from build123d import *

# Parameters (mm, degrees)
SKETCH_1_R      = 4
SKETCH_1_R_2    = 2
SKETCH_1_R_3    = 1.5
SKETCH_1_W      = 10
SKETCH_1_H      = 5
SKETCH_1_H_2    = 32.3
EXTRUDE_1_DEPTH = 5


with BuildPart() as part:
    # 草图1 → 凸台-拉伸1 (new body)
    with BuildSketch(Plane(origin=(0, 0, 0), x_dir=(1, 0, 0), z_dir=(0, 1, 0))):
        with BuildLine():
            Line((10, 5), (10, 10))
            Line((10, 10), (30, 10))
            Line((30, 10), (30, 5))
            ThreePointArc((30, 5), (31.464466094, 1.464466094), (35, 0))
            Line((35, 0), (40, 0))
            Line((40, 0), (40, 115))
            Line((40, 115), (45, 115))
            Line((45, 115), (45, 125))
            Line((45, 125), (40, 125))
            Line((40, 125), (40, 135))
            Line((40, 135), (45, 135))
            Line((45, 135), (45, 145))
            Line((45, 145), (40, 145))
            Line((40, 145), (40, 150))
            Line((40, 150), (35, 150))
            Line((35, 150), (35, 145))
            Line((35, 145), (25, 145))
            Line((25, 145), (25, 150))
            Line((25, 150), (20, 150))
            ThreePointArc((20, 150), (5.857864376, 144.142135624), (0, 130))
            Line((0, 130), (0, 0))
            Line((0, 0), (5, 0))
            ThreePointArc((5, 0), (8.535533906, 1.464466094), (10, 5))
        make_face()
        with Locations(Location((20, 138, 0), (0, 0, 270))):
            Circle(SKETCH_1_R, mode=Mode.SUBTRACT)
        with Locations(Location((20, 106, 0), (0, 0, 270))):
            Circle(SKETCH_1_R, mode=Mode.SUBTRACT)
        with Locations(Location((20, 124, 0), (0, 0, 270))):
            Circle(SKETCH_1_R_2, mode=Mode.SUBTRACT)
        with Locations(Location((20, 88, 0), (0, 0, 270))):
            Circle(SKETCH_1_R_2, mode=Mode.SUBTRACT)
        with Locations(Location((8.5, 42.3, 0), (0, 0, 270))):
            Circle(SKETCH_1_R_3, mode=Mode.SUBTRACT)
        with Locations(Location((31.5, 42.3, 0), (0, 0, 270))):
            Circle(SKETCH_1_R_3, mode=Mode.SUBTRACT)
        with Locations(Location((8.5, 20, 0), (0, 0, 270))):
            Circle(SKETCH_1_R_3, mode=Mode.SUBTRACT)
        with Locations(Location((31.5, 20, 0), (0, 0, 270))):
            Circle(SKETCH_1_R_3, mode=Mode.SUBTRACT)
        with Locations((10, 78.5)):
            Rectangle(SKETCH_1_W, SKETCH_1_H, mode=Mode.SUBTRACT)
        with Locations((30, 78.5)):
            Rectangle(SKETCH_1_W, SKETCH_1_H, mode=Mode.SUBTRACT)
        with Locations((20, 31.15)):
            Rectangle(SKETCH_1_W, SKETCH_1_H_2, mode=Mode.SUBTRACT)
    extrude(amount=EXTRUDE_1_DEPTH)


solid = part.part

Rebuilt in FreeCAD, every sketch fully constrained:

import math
import FreeCAD as App
import Part
import Sketcher

V = App.Vector
Q = App.Units.Quantity


def add_polygon(sketch, points):
    """Adds a closed chain of lines whose ends are joined by coincident constraints."""
    first, n = sketch.GeometryCount, len(points)
    for a, b in zip(points, points[1:] + points[:1]):
        sketch.addGeometry(Part.LineSegment(App.Vector(*a, 0), App.Vector(*b, 0)), False)
    for i in range(n):
        sketch.addConstraint(Sketcher.Constraint("Coincident", first + i, 2, first + (i + 1) % n, 1))

doc = App.newDocument("Part")
body = doc.addObject("PartDesign::Body", "Body")

# Sketch on XZ plane
sketch1 = body.newObject("Sketcher::SketchObject", "Sketch")
sketch1.AttachmentSupport = (doc.getObject("XZ_Plane"), [""])
sketch1.MapMode = "FlatFace"
sketch1.addGeometry(Part.LineSegment(V(10, -5, 0), V(10, -10, 0)), False)  # 0
sketch1.addGeometry(Part.LineSegment(V(10, -10, 0), V(30, -10, 0)), False)  # 1
sketch1.addGeometry(Part.LineSegment(V(30, -10, 0), V(30, -5, 0)), False)  # 2
sketch1.addGeometry(Part.ArcOfCircle(Part.Circle(V(35, -5, 0), V(0, 0, 1), 5), math.radians(90), math.radians(180)), False)  # 3
sketch1.addGeometry(Part.LineSegment(V(35, 0, 0), V(40, 0, 0)), False)  # 4
sketch1.addGeometry(Part.LineSegment(V(40, 0, 0), V(40, -115, 0)), False)  # 5
sketch1.addGeometry(Part.LineSegment(V(40, -115, 0), V(45, -115, 0)), False)  # 6
sketch1.addGeometry(Part.LineSegment(V(45, -115, 0), V(45, -125, 0)), False)  # 7
sketch1.addGeometry(Part.LineSegment(V(45, -125, 0), V(40, -125, 0)), False)  # 8
sketch1.addGeometry(Part.LineSegment(V(40, -125, 0), V(40, -135, 0)), False)  # 9
sketch1.addGeometry(Part.LineSegment(V(40, -135, 0), V(45, -135, 0)), False)  # 10
sketch1.addGeometry(Part.LineSegment(V(45, -135, 0), V(45, -145, 0)), False)  # 11
sketch1.addGeometry(Part.LineSegment(V(45, -145, 0), V(40, -145, 0)), False)  # 12
sketch1.addGeometry(Part.LineSegment(V(40, -145, 0), V(40, -150, 0)), False)  # 13
sketch1.addGeometry(Part.LineSegment(V(40, -150, 0), V(35, -150, 0)), False)  # 14
sketch1.addGeometry(Part.LineSegment(V(35, -150, 0), V(35, -145, 0)), False)  # 15
sketch1.addGeometry(Part.LineSegment(V(35, -145, 0), V(25, -145, 0)), False)  # 16
sketch1.addGeometry(Part.LineSegment(V(25, -145, 0), V(25, -150, 0)), False)  # 17
sketch1.addGeometry(Part.LineSegment(V(25, -150, 0), V(20, -150, 0)), False)  # 18
sketch1.addGeometry(Part.ArcOfCircle(Part.Circle(V(20, -130, 0), V(0, 0, 1), 20), math.radians(180), math.radians(270)), False)  # 19
sketch1.addGeometry(Part.LineSegment(V(0, -130, 0), V(0, 0, 0)), False)  # 20
sketch1.addGeometry(Part.LineSegment(V(0, 0, 0), V(5, 0, 0)), False)  # 21
sketch1.addGeometry(Part.ArcOfCircle(Part.Circle(V(5, -5, 0), V(0, 0, 1), 5), math.radians(0), math.radians(90)), False)  # 22
sketch1.addGeometry(Part.Circle(V(8.5, -20, 0), V(0, 0, 1), 1.5), False)  # 23
sketch1.addGeometry(Part.Circle(V(8.5, -42.3, 0), V(0, 0, 1), 1.5), False)  # 24
add_polygon(sketch1, [(25, -15), (15, -15), (15, -47.3), (25, -47.3)])  # lines 25-28
sketch1.addGeometry(Part.Circle(V(31.5, -20, 0), V(0, 0, 1), 1.5), False)  # 29
sketch1.addGeometry(Part.Circle(V(31.5, -42.3, 0), V(0, 0, 1), 1.5), False)  # 30
add_polygon(sketch1, [(15, -76), (5, -76), (5, -81), (15, -81)])  # lines 31-34
sketch1.addGeometry(Part.Circle(V(20, -88, 0), V(0, 0, 1), 2), False)  # 35
sketch1.addGeometry(Part.Circle(V(20, -106, 0), V(0, 0, 1), 4), False)  # 36
add_polygon(sketch1, [(35, -76), (25, -76), (25, -81), (35, -81)])  # lines 37-40
sketch1.addGeometry(Part.Circle(V(20, -124, 0), V(0, 0, 1), 2), False)  # 41
sketch1.addGeometry(Part.Circle(V(20, -138, 0), V(0, 0, 1), 4), False)  # 42
sketch1.addConstraint(Sketcher.Constraint("Coincident", 0, 2, 1, 1))
sketch1.addConstraint(Sketcher.Constraint("Coincident", 1, 2, 2, 1))
sketch1.addConstraint(Sketcher.Constraint("Tangent", 2, 2, 3, 2))
sketch1.addConstraint(Sketcher.Constraint("Tangent", 3, 1, 4, 1))
sketch1.addConstraint(Sketcher.Constraint("Coincident", 4, 2, 5, 1))
sketch1.addConstraint(Sketcher.Constraint("Coincident", 5, 2, 6, 1))
sketch1.addConstraint(Sketcher.Constraint("Coincident", 6, 2, 7, 1))
sketch1.addConstraint(Sketcher.Constraint("Coincident", 7, 2, 8, 1))
sketch1.addConstraint(Sketcher.Constraint("Coincident", 8, 2, 9, 1))
sketch1.addConstraint(Sketcher.Constraint("Coincident", 9, 2, 10, 1))
sketch1.addConstraint(Sketcher.Constraint("Coincident", 10, 2, 11, 1))
sketch1.addConstraint(Sketcher.Constraint("Coincident", 11, 2, 12, 1))
sketch1.addConstraint(Sketcher.Constraint("Coincident", 12, 2, 13, 1))
sketch1.addConstraint(Sketcher.Constraint("Coincident", 13, 2, 14, 1))
sketch1.addConstraint(Sketcher.Constraint("Coincident", 14, 2, 15, 1))
sketch1.addConstraint(Sketcher.Constraint("Coincident", 15, 2, 16, 1))
sketch1.addConstraint(Sketcher.Constraint("Coincident", 16, 2, 17, 1))
sketch1.addConstraint(Sketcher.Constraint("Coincident", 17, 2, 18, 1))
sketch1.addConstraint(Sketcher.Constraint("Tangent", 18, 2, 19, 2))
sketch1.addConstraint(Sketcher.Constraint("Tangent", 19, 1, 20, 1))
sketch1.addConstraint(Sketcher.Constraint("Coincident", 20, 2, 21, 1))
sketch1.addConstraint(Sketcher.Constraint("Tangent", 21, 2, 22, 2))
sketch1.addConstraint(Sketcher.Constraint("Tangent", 22, 1, 0, 1))
sketch1.addConstraint(Sketcher.Constraint("Vertical", 0))
sketch1.addConstraint(Sketcher.Constraint("Horizontal", 1))
sketch1.addConstraint(Sketcher.Constraint("Vertical", 2))
sketch1.addConstraint(Sketcher.Constraint("Horizontal", 4))
sketch1.addConstraint(Sketcher.Constraint("Vertical", 5))
sketch1.addConstraint(Sketcher.Constraint("Horizontal", 6))
sketch1.addConstraint(Sketcher.Constraint("Vertical", 7))
sketch1.addConstraint(Sketcher.Constraint("Horizontal", 8))
sketch1.addConstraint(Sketcher.Constraint("Vertical", 9))
sketch1.addConstraint(Sketcher.Constraint("Horizontal", 10))
sketch1.addConstraint(Sketcher.Constraint("Vertical", 11))
sketch1.addConstraint(Sketcher.Constraint("Horizontal", 12))
sketch1.addConstraint(Sketcher.Constraint("Vertical", 13))
sketch1.addConstraint(Sketcher.Constraint("Horizontal", 14))
sketch1.addConstraint(Sketcher.Constraint("Vertical", 15))
sketch1.addConstraint(Sketcher.Constraint("Horizontal", 16))
sketch1.addConstraint(Sketcher.Constraint("Vertical", 17))
sketch1.addConstraint(Sketcher.Constraint("Horizontal", 18))
sketch1.addConstraint(Sketcher.Constraint("Vertical", 20))
sketch1.addConstraint(Sketcher.Constraint("Horizontal", 21))
sketch1.addConstraint(Sketcher.Constraint("Horizontal", 25))
sketch1.addConstraint(Sketcher.Constraint("Vertical", 26))
sketch1.addConstraint(Sketcher.Constraint("Horizontal", 27))
sketch1.addConstraint(Sketcher.Constraint("Vertical", 28))
sketch1.addConstraint(Sketcher.Constraint("Horizontal", 31))
sketch1.addConstraint(Sketcher.Constraint("Vertical", 32))
sketch1.addConstraint(Sketcher.Constraint("Horizontal", 33))
sketch1.addConstraint(Sketcher.Constraint("Vertical", 34))
sketch1.addConstraint(Sketcher.Constraint("Horizontal", 37))
sketch1.addConstraint(Sketcher.Constraint("Vertical", 38))
sketch1.addConstraint(Sketcher.Constraint("Horizontal", 39))
sketch1.addConstraint(Sketcher.Constraint("Vertical", 40))
sketch1.addConstraint(Sketcher.Constraint("Coincident", 20, 2, -1, 1))
sketch1.addConstraint(Sketcher.Constraint("Equal", 3, 22))
sketch1.addConstraint(Sketcher.Constraint("Equal", 23, 24))
sketch1.addConstraint(Sketcher.Constraint("Equal", 24, 29))
sketch1.addConstraint(Sketcher.Constraint("Equal", 29, 30))
sketch1.addConstraint(Sketcher.Constraint("Equal", 35, 41))
sketch1.addConstraint(Sketcher.Constraint("Equal", 36, 42))
sketch1.addConstraint(Sketcher.Constraint("PointOnObject", 3, 1, -1))
sketch1.addConstraint(Sketcher.Constraint("Horizontal", 23, 3, 29, 3))
sketch1.addConstraint(Sketcher.Constraint("Horizontal", 24, 3, 30, 3))
sketch1.addConstraint(Sketcher.Constraint("Horizontal", 12, 2, 15, 2))
sketch1.addConstraint(Sketcher.Constraint("Horizontal", 14, 2, 17, 2))
sketch1.addConstraint(Sketcher.Constraint("Horizontal", 34, 2, 37, 2))
sketch1.addConstraint(Sketcher.Constraint("Horizontal", 33, 2, 38, 2))
sketch1.addConstraint(Sketcher.Constraint("Vertical", 23, 3, 24, 3))
sketch1.addConstraint(Sketcher.Constraint("Vertical", 29, 3, 30, 3))
sketch1.addConstraint(Sketcher.Constraint("Vertical", 19, 3, 35, 3))
sketch1.addConstraint(Sketcher.Constraint("Vertical", 35, 3, 36, 3))
sketch1.addConstraint(Sketcher.Constraint("Vertical", 36, 3, 41, 3))
sketch1.addConstraint(Sketcher.Constraint("Vertical", 41, 3, 42, 3))
sketch1.addConstraint(Sketcher.Constraint("Vertical", 5, 2, 8, 2))
sketch1.addConstraint(Sketcher.Constraint("Vertical", 7, 2, 10, 2))
sketch1.addConstraint(Sketcher.Constraint("Vertical", 9, 2, 12, 2))
sketch1.addConstraint(Sketcher.Constraint("Vertical", 3, 1, 14, 2))
sketch1.addConstraint(Sketcher.Constraint("Vertical", 17, 2, 27, 2))
sketch1.addConstraint(Sketcher.Constraint("Vertical", 21, 2, 31, 2))
sketch1.addConstraint(Sketcher.Constraint("Vertical", 26, 2, 33, 2))
sketch1.addConstraint(Sketcher.Constraint("Vertical", 28, 2, 37, 2))
sketch1.addConstraint(Sketcher.Constraint("Vertical", 15, 2, 39, 2))
sketch1.addConstraint(Sketcher.Constraint("Equal", 4, 6))
sketch1.addConstraint(Sketcher.Constraint("Equal", 14, 18))
sketch1.addConstraint(Sketcher.Constraint("Equal", 18, 21))
sketch1.addConstraint(Sketcher.Constraint("Equal", 16, 25))
sketch1.addConstraint(Sketcher.Constraint("Equal", 27, 31))
sketch1.addConstraint(Sketcher.Constraint("Equal", 21, 0))
sketch1.addConstraint(Sketcher.Constraint("Equal", 39, 7))
sketch1.addConstraint(Sketcher.Constraint("Equal", 7, 9))
sketch1.addConstraint(Sketcher.Constraint("Equal", 9, 11))
sketch1.addConstraint(Sketcher.Constraint("Equal", 2, 13))
sketch1.addConstraint(Sketcher.Constraint("Equal", 17, 32))
sketch1.addConstraint(Sketcher.Constraint("Diameter", 23, Q("3 mm")))
sketch1.addConstraint(Sketcher.Constraint("Diameter", 35, Q("4 mm")))
sketch1.addConstraint(Sketcher.Constraint("Diameter", 36, Q("8 mm")))
sketch1.addConstraint(Sketcher.Constraint("Radius", 3, Q("5 mm")))
sketch1.addConstraint(Sketcher.Constraint("Radius", 19, Q("20 mm")))
sketch1.addConstraint(Sketcher.Constraint("DistanceX", 4, 1, 4, 2, Q("5 mm")))
sketch1.addConstraint(Sketcher.Constraint("DistanceY", 5, 2, 5, 1, Q("115 mm")))
sketch1.addConstraint(Sketcher.Constraint("DistanceY", 26, 2, 26, 1, Q("32.3 mm")))
sketch1.addConstraint(Sketcher.Constraint("DistanceY", 23, 3, -1, 1, Q("20 mm")))
sketch1.addConstraint(Sketcher.Constraint("DistanceY", 35, 3, -1, 1, Q("88 mm")))
sketch1.addConstraint(Sketcher.Constraint("DistanceY", 36, 3, -1, 1, Q("106 mm")))
sketch1.addConstraint(Sketcher.Constraint("DistanceY", 41, 3, -1, 1, Q("124 mm")))
sketch1.addConstraint(Sketcher.Constraint("DistanceY", 42, 3, -1, 1, Q("138 mm")))
sketch1.addConstraint(Sketcher.Constraint("DistanceY", 25, 2, -1, 1, Q("15 mm")))
sketch1.addConstraint(Sketcher.Constraint("DistanceY", 31, 2, -1, 1, Q("76 mm")))
sketch1.addConstraint(Sketcher.Constraint("DistanceX", 23, 3, 29, 3, Q("23 mm")))
sketch1.addConstraint(Sketcher.Constraint("DistanceY", 26, 2, 24, 3, Q("5 mm")))
sketch1.addConstraint(Sketcher.Constraint("DistanceX", -1, 1, 23, 3, Q("8.5 mm")))
pad1 = body.newObject("PartDesign::Pad", "Pad")
pad1.Profile = sketch1
pad1.Length = 5
pad1.Reversed = True

doc.recompute()
